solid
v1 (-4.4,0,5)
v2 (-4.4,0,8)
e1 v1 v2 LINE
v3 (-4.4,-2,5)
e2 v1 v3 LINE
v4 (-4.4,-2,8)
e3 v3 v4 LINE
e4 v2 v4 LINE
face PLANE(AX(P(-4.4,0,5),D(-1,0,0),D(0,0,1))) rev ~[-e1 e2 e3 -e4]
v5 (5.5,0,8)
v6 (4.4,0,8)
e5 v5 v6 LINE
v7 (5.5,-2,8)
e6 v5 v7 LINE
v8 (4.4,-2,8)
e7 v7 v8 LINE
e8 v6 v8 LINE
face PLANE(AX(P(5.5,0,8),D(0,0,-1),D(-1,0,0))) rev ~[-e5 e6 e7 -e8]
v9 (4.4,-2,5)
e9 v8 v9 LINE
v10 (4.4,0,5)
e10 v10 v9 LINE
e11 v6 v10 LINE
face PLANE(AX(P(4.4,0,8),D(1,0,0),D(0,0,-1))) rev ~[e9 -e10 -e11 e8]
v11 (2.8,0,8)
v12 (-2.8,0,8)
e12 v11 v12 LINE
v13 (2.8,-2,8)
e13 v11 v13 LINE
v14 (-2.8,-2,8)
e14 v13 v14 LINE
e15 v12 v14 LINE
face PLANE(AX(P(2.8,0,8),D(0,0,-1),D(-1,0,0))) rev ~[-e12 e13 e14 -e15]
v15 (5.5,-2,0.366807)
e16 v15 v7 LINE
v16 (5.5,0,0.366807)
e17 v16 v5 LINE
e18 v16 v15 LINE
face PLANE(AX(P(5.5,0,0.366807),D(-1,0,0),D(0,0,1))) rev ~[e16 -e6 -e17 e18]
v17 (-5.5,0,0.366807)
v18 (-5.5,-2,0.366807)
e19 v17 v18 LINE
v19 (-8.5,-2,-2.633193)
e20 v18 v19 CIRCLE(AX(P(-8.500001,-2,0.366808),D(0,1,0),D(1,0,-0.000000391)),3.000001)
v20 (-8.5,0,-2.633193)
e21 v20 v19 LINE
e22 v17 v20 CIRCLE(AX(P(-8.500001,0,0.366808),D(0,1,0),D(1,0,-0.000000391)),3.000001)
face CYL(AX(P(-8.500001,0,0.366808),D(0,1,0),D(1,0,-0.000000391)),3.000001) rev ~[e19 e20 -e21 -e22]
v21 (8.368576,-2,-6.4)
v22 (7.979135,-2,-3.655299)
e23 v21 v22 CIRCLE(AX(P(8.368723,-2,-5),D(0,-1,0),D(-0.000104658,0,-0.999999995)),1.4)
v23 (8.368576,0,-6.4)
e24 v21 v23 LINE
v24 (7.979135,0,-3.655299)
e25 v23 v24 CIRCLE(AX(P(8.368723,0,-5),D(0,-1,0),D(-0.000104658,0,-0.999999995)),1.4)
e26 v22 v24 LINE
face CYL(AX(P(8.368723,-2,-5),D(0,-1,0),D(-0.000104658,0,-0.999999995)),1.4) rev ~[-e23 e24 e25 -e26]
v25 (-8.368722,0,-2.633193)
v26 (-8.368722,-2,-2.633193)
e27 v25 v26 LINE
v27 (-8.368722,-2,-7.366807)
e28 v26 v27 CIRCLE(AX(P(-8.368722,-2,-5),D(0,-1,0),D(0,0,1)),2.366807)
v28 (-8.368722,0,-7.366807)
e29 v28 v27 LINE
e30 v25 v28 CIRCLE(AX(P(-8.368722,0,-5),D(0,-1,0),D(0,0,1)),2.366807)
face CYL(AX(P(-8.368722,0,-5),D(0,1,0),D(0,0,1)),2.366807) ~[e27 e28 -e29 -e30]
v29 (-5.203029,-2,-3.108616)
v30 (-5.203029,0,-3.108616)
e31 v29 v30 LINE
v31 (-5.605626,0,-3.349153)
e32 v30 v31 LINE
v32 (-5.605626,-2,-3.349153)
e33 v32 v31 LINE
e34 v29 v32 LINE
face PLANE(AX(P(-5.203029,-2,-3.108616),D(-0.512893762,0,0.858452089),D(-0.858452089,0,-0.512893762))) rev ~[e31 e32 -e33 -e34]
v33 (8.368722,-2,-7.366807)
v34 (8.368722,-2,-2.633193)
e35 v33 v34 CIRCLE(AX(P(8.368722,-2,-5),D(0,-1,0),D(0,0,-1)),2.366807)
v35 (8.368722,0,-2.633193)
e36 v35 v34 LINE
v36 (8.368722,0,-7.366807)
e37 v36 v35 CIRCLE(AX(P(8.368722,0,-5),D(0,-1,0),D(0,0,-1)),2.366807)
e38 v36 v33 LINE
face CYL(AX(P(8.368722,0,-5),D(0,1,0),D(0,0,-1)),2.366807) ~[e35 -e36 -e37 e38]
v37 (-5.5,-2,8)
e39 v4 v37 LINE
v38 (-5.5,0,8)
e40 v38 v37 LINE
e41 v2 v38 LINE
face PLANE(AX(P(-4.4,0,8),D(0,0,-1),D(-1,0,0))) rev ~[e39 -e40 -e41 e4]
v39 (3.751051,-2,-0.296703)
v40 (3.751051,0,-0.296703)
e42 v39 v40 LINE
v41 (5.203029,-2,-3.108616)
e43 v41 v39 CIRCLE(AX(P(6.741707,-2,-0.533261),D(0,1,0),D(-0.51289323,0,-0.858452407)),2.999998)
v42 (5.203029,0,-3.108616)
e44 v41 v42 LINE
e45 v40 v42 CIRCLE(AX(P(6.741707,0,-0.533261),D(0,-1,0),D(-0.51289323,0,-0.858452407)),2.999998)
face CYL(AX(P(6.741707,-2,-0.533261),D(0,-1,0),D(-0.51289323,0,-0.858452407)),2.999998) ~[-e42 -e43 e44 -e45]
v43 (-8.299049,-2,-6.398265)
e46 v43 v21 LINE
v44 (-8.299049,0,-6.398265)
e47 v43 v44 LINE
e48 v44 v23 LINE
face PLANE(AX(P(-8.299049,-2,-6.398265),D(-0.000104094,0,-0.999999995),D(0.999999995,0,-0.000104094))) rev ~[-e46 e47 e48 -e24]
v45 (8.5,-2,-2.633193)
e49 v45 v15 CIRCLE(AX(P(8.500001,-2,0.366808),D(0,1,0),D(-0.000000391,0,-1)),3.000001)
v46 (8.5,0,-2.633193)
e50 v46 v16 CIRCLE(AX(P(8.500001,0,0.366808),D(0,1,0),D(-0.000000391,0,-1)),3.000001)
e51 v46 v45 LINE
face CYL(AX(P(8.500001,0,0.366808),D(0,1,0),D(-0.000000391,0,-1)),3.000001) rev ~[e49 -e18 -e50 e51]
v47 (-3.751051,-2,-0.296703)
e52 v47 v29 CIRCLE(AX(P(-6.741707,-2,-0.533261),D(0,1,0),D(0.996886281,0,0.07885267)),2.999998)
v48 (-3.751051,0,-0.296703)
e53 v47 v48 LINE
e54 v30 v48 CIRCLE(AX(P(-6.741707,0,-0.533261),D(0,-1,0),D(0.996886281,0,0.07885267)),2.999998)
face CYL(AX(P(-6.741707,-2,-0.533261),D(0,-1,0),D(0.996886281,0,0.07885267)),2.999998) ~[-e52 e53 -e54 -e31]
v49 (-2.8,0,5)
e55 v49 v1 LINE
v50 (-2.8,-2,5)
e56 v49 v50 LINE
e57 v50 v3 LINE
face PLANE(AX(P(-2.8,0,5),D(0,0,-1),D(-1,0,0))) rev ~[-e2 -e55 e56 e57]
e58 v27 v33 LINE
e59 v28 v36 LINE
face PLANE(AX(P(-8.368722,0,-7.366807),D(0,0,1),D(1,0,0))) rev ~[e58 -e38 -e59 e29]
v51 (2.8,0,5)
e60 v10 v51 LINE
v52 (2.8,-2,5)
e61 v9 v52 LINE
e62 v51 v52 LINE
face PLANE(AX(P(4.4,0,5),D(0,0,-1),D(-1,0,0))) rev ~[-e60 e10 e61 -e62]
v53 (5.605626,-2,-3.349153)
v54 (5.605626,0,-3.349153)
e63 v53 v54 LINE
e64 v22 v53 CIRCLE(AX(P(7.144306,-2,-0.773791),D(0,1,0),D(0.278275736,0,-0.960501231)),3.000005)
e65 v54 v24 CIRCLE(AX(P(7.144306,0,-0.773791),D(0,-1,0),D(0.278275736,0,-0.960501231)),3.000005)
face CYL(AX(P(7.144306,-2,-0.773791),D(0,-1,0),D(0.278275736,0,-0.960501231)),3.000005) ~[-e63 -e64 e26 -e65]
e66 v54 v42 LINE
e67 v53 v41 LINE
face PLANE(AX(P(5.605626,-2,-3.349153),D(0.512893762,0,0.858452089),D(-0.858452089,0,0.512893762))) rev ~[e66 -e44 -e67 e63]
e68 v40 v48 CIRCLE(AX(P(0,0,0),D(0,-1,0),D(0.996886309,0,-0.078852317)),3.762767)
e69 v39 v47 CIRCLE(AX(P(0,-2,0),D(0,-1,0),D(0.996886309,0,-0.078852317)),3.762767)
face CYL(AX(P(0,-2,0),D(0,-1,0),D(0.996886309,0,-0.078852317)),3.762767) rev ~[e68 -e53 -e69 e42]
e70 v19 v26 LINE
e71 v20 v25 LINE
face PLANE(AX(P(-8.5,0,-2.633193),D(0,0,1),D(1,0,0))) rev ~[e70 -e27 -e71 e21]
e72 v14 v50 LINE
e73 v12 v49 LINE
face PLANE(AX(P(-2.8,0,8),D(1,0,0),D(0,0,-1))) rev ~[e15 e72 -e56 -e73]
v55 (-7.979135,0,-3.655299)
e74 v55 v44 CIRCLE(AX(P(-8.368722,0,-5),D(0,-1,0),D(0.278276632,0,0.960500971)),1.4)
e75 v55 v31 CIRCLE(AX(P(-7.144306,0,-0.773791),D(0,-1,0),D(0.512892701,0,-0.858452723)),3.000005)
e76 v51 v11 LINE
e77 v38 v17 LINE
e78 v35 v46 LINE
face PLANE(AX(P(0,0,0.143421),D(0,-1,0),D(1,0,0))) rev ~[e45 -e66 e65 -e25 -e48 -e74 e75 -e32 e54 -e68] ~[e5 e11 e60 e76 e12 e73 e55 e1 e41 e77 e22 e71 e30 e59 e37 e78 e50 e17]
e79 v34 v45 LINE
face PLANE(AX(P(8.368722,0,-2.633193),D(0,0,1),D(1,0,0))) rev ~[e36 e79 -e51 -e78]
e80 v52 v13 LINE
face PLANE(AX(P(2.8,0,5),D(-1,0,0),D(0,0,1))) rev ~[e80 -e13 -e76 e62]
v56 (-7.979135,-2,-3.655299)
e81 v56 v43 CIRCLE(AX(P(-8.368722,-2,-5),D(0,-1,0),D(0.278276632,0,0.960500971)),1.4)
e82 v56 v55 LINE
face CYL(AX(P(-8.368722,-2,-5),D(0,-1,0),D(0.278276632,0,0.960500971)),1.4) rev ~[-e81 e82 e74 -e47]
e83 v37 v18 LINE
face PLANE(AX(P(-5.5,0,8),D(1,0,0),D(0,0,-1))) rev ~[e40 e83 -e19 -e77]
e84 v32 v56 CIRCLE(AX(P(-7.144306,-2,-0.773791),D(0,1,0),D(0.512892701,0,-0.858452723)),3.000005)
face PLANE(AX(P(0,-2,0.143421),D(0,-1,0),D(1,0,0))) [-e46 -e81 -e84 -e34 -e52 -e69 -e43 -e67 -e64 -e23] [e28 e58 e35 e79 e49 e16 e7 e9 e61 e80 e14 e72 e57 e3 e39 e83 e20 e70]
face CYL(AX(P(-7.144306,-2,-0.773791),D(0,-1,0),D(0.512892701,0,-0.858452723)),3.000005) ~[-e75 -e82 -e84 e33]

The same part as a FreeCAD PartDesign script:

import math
import FreeCAD as App
import Part
import Sketcher

V = App.Vector

doc = App.newDocument("Part")
params = doc.addObject("Spreadsheet::Sheet", "Params")
for row, (alias, value) in enumerate([
    ("sketch1_radius", "3.000001 mm"),
    ("sketch1_height", "3 mm"),
    ("sketch1_width", "1.6 mm"),
    ("sketch1_width2", "5.6 mm"),
    ("sketch1_width3", "1.1 mm"),
    ("pad1_length", "2 mm"),
    ("sketch2_radius", "1.4 mm"),
    ("sketch2_radius2", "1.4 mm"),
], start=1):
    params.set(f"A{row}", alias)
    params.set(f"B{row}", "=" + value)
    params.setAlias(f"B{row}", alias)

body = doc.addObject("PartDesign::Body", "Body")

sketch1 = doc.addObject("Sketcher::SketchObject", "Sketch")
body.addObject(sketch1)
sketch1.AttachmentSupport = (doc.XZ_Plane, [""])
sketch1.MapMode = "FlatFace"
sketch1.addGeometry(Part.LineSegment(V(4.4, 8, 0), V(4.4, 5, 0)), False)
sketch1.addGeometry(Part.LineSegment(V(4.4, 5, 0), V(2.8, 5, 0)), False)
sketch1.addGeometry(Part.LineSegment(V(2.8, 5, 0), V(2.8, 8, 0)), False)
sketch1.addGeometry(Part.LineSegment(V(2.8, 8, 0), V(-2.8, 8, 0)), False)
sketch1.addGeometry(Part.LineSegment(V(-2.8, 8, 0), V(-2.8, 5, 0)), False)
sketch1.addGeometry(Part.LineSegment(V(-2.8, 5, 0), V(-4.4, 5, 0)), False)
sketch1.addGeometry(Part.LineSegment(V(-4.4, 5, 0), V(-4.4, 8, 0)), False)
sketch1.addGeometry(Part.LineSegment(V(-4.4, 8, 0), V(-5.5, 8, 0)), False)
sketch1.addGeometry(Part.LineSegment(V(-5.5, 8, 0), V(-5.5, 0.366807, 0)), False)
sketch1.addGeometry(Part.ArcOfCircle(Part.Circle(V(-8.500001, 0.366808, 0), V(0, 0, 1), 3.000001), math.radians(-89.999978), math.radians(-0.000022)), False)
sketch1.addGeometry(Part.LineSegment(V(-8.5, -2.633193, 0), V(-8.368722, -2.633193, 0)), False)
sketch1.addGeometry(Part.ArcOfCircle(Part.Circle(V(-8.368722, -5, 0), V(0, 0, 1), 2.366807), math.radians(90), math.radians(270)), False)
sketch1.addGeometry(Part.LineSegment(V(-8.368722, -7.366807, 0), V(8.368722, -7.366807, 0)), False)
sketch1.addGeometry(Part.ArcOfCircle(Part.Circle(V(8.368722, -5, 0), V(0, 0, 1), 2.366807), math.radians(-90), math.radians(90)), False)
sketch1.addGeometry(Part.LineSegment(V(8.368722, -2.633193, 0), V(8.5, -2.633193, 0)), False)
sketch1.addGeometry(Part.ArcOfCircle(Part.Circle(V(8.500001, 0.366808, 0), V(0, 0, 1), 3.000001), math.radians(-179.999978), math.radians(-90.000022)), False)
sketch1.addGeometry(Part.LineSegment(V(5.5, 0.366807, 0), V(5.5, 8, 0)), False)
sketch1.addGeometry(Part.LineSegment(V(5.5, 8, 0), V(4.4, 8, 0)), False)
sketch1.addConstraint(Sketcher.Constraint("Coincident", 0, 2, 1, 1))
sketch1.addConstraint(Sketcher.Constraint("Coincident", 1, 2, 2, 1))
sketch1.addConstraint(Sketcher.Constraint("Coincident", 2, 2, 3, 1))
sketch1.addConstraint(Sketcher.Constraint("Coincident", 3, 2, 4, 1))
sketch1.addConstraint(Sketcher.Constraint("Coincident", 4, 2, 5, 1))
sketch1.addConstraint(Sketcher.Constraint("Coincident", 5, 2, 6, 1))
sketch1.addConstraint(Sketcher.Constraint("Coincident", 6, 2, 7, 1))
sketch1.addConstraint(Sketcher.Constraint("Coincident", 7, 2, 8, 1))
sketch1.addConstraint(Sketcher.Constraint("Tangent", 8, 2, 9, 2))
sketch1.addConstraint(Sketcher.Constraint("Tangent", 9, 1, 10, 1))
sketch1.addConstraint(Sketcher.Constraint("Tangent", 10, 2, 11, 1))
sketch1.addConstraint(Sketcher.Constraint("Tangent", 11, 2, 12, 1))
sketch1.addConstraint(Sketcher.Constraint("Tangent", 12, 2, 13, 1))
sketch1.addConstraint(Sketcher.Constraint("Tangent", 13, 2, 14, 1))
sketch1.addConstraint(Sketcher.Constraint("Tangent", 14, 2, 15, 2))
sketch1.addConstraint(Sketcher.Constraint("Tangent", 15, 1, 16, 1))
sketch1.addConstraint(Sketcher.Constraint("Coincident", 16, 2, 17, 1))
sketch1.addConstraint(Sketcher.Constraint("Coincident", 17, 2, 0, 1))
sketch1.addConstraint(Sketcher.Constraint("Vertical", 0))
sketch1.addConstraint(Sketcher.Constraint("Horizontal", 1))
sketch1.addConstraint(Sketcher.Constraint("Vertical", 2))
sketch1.addConstraint(Sketcher.Constraint("Horizontal", 3))
sketch1.addConstraint(Sketcher.Constraint("Vertical", 4))
sketch1.addConstraint(Sketcher.Constraint("Horizontal", 5))
sketch1.addConstraint(Sketcher.Constraint("Vertical", 6))
sketch1.addConstraint(Sketcher.Constraint("Horizontal", 7))
sketch1.addConstraint(Sketcher.Constraint("Vertical", 8))
sketch1.addConstraint(Sketcher.Constraint("Horizontal", 10))
sketch1.addConstraint(Sketcher.Constraint("Horizontal", 12))
sketch1.addConstraint(Sketcher.Constraint("Horizontal", 14))
sketch1.addConstraint(Sketcher.Constraint("Vertical", 16))
sketch1.addConstraint(Sketcher.Constraint("Horizontal", 17))
sketch1.addConstraint(Sketcher.Constraint("Equal", 11, 13))
sketch1.addConstraint(Sketcher.Constraint("Equal", 9, 15))
sketch1.addConstraint(Sketcher.Constraint("Symmetric", 1, 2, 4, 2, -2))
sketch1.addConstraint(Sketcher.Constraint("Symmetric", 7, 2, 16, 2, -2))
sketch1.addConstraint(Sketcher.Constraint("Horizontal", 3, 2, 6, 2))
sketch1.addConstraint(Sketcher.Constraint("Equal", 1, 5))
sketch1.addConstraint(Sketcher.Constraint("Equal", 10, 14))
sketch1.addConstraint(Sketcher.Constraint("Radius", 9, 3.000001))
sketch1.addConstraint(Sketcher.Constraint("DistanceY", 0, 2, 0, 1, 3.0))
sketch1.addConstraint(Sketcher.Constraint("DistanceX", 1, 2, 1, 1, 1.6))
sketch1.addConstraint(Sketcher.Constraint("DistanceX", 3, 2, 3, 1, 5.6))
sketch1.addConstraint(Sketcher.Constraint("DistanceX", 7, 2, 7, 1, 1.1))
sketch1.addConstraint(Sketcher.Constraint("DistanceY", 11, 3, -1, 1, 5.0))
sketch1.addConstraint(Sketcher.Constraint("DistanceY", -1, 1, 0, 2, 5.0))
sketch1.addConstraint(Sketcher.Constraint("Radius", 11, 2.366807))
sketch1.addConstraint(Sketcher.Constraint("DistanceX", 10, 1, 10, 2, 0.131278))
sketch1.setExpression("Constraints[39]", "Params.sketch1_radius")
sketch1.setExpression("Constraints[40]", "Params.sketch1_height")
sketch1.setExpression("Constraints[41]", "Params.sketch1_width")
sketch1.setExpression("Constraints[42]", "Params.sketch1_width2")
sketch1.setExpression("Constraints[43]", "Params.sketch1_width3")
pad1 = doc.addObject("PartDesign::Pad", "Pad")
body.addObject(pad1)
pad1.Profile = sketch1
pad1.setExpression("Length", "Params.pad1_length")

sketch2 = doc.addObject("Sketcher::SketchObject", "Sketch001")
body.addObject(sketch2)
sketch2.AttachmentSupport = (doc.XZ_Plane, [""])
sketch2.MapMode = "FlatFace"
sketch2.AttachmentOffset = App.Placement(V(0, 0, 2), App.Rotation())
sketch2.addGeometry(Part.ArcOfCircle(Part.Circle(V(6.741707, -0.533261, 0), V(0, 0, 1), 2.999998), math.radians(175.47738), math.radians(239.143261)), False)
sketch2.addGeometry(Part.ArcOfCircle(Part.Circle(V(0, 0, 0), V(0, 0, 1), 3.762767), math.radians(-4.5226), math.radians(184.5226)), False)
sketch2.addGeometry(Part.ArcOfCircle(Part.Circle(V(-6.741707, -0.533261, 0), V(0, 0, 1), 2.999998), math.radians(-59.143261), math.radians(4.52262)), False)
sketch2.addGeometry(Part.LineSegment(V(-5.203029, -3.108616, 0), V(-5.605626, -3.349153, 0)), False)
sketch2.addGeometry(Part.ArcOfCircle(Part.Circle(V(-7.144306, -0.773791, 0), V(0, 0, 1), 3.000005), math.radians(-106.157322), math.radians(-59.143296)), False)
sketch2.addGeometry(Part.ArcOfCircle(Part.Circle(V(-8.368722, -5, 0), V(0, 0, 1), 1.4), math.radians(73.842624), math.radians(272.852594)), False)
sketch2.addGeometry(Part.LineSegment(V(-8.299049, -6.398265, 0), V(8.368576, -6.4, 0)), False)
sketch2.addGeometry(Part.ArcOfCircle(Part.Circle(V(8.368723, -5, 0), V(0, 0, 1), 1.4), math.radians(-90.005996), math.radians(106.157387)), False)
sketch2.addGeometry(Part.ArcOfCircle(Part.Circle(V(7.144306, -0.773791, 0), V(0, 0, 1), 3.000005), math.radians(-120.856704), math.radians(-73.842678)), False)
sketch2.addGeometry(Part.LineSegment(V(5.605626, -3.349153, 0), V(5.203029, -3.108616, 0)), False)
sketch2.addConstraint(Sketcher.Constraint("Coincident", 0, 1, 1, 1))
sketch2.addConstraint(Sketcher.Constraint("Coincident", 1, 2, 2, 2))
sketch2.addConstraint(Sketcher.Constraint("Coincident", 2, 1, 3, 1))
sketch2.addConstraint(Sketcher.Constraint("Coincident", 3, 2, 4, 2))
sketch2.addConstraint(Sketcher.Constraint("Coincident", 4, 1, 5, 1))
sketch2.addConstraint(Sketcher.Constraint("Coincident", 5, 2, 6, 1))
sketch2.addConstraint(Sketcher.Constraint("Coincident", 6, 2, 7, 1))
sketch2.addConstraint(Sketcher.Constraint("Coincident", 7, 2, 8, 2))
sketch2.addConstraint(Sketcher.Constraint("Coincident", 8, 1, 9, 1))
sketch2.addConstraint(Sketcher.Constraint("Coincident", 9, 2, 0, 2))
sketch2.addConstraint(Sketcher.Constraint("Coincident", 1, 3, -1, 1))
sketch2.addConstraint(Sketcher.Constraint("Radius", 5, 1.4))
sketch2.addConstraint(Sketcher.Constraint("Radius", 7, 1.4))
sketch2.addConstraint(Sketcher.Constraint("DistanceY", 5, 3, -1, 1, 5.0))
sketch2.addConstraint(Sketcher.Constraint("DistanceY", 7, 3, -1, 1, 5.0))
sketch2.addConstraint(Sketcher.Constraint("Radius", 0, 2.999998))
sketch2.addConstraint(Sketcher.Constraint("Radius", 1, 3.762767))
sketch2.addConstraint(Sketcher.Constraint("Radius", 2, 2.999998))
sketch2.addConstraint(Sketcher.Constraint("Radius", 4, 3.000005))
sketch2.addConstraint(Sketcher.Constraint("Radius", 8, 3.000005))
sketch2.addConstraint(Sketcher.Constraint("DistanceY", 4, 1, -1, 1, 3.655299))
sketch2.addConstraint(Sketcher.Constraint("DistanceY", 7, 2, -1, 1, 3.655299))
sketch2.addConstraint(Sketcher.Constraint("DistanceX", 4, 3, 2, 3, 0.402599))
sketch2.addConstraint(Sketcher.Constraint("DistanceX", 0, 3, 8, 3, 0.402599))
sketch2.addConstraint(Sketcher.Constraint("DistanceX", 1, 2, 0, 1, 7.502102))
sketch2.addConstraint(Sketcher.Constraint("Distance", 3, 0.46898))
sketch2.addConstraint(Sketcher.Constraint("Distance", 9, 0.46898))
sketch2.addConstraint(Sketcher.Constraint("DistanceY", 0, 3, -1, 1, 0.533261))
sketch2.addConstraint(Sketcher.Constraint("DistanceY", 2, 3, -1, 1, 0.533261))
sketch2.addConstraint(Sketcher.Constraint("DistanceY", 4, 3, -1, 1, 0.773791))
sketch2.addConstraint(Sketcher.Constraint("DistanceY", 8, 3, -1, 1, 0.773791))
sketch2.addConstraint(Sketcher.Constraint("DistanceX", -1, 1, 0, 1, 3.751051))
sketch2.addConstraint(Sketcher.Constraint("DistanceX", 2, 1, -1, 1, 5.203029))
sketch2.addConstraint(Sketcher.Constraint("DistanceX", 5, 2, -1, 1, 8.299049))
sketch2.addConstraint(Sketcher.Constraint("DistanceX", -1, 1, 9, 2, 5.203029))
sketch2.addConstraint(Sketcher.Constraint("DistanceX", 8, 3, 6, 2, 1.22427))
sketch2.setExpression("Constraints[11]", "Params.sketch2_radius")
sketch2.setExpression("Constraints[12]", "Params.sketch2_radius2")
pocket1 = doc.addObject("PartDesign::Pocket", "Pocket")
body.addObject(pocket1)
pocket1.Profile = sketch2
pocket1.Type = "ThroughAll"

doc.recompute()
